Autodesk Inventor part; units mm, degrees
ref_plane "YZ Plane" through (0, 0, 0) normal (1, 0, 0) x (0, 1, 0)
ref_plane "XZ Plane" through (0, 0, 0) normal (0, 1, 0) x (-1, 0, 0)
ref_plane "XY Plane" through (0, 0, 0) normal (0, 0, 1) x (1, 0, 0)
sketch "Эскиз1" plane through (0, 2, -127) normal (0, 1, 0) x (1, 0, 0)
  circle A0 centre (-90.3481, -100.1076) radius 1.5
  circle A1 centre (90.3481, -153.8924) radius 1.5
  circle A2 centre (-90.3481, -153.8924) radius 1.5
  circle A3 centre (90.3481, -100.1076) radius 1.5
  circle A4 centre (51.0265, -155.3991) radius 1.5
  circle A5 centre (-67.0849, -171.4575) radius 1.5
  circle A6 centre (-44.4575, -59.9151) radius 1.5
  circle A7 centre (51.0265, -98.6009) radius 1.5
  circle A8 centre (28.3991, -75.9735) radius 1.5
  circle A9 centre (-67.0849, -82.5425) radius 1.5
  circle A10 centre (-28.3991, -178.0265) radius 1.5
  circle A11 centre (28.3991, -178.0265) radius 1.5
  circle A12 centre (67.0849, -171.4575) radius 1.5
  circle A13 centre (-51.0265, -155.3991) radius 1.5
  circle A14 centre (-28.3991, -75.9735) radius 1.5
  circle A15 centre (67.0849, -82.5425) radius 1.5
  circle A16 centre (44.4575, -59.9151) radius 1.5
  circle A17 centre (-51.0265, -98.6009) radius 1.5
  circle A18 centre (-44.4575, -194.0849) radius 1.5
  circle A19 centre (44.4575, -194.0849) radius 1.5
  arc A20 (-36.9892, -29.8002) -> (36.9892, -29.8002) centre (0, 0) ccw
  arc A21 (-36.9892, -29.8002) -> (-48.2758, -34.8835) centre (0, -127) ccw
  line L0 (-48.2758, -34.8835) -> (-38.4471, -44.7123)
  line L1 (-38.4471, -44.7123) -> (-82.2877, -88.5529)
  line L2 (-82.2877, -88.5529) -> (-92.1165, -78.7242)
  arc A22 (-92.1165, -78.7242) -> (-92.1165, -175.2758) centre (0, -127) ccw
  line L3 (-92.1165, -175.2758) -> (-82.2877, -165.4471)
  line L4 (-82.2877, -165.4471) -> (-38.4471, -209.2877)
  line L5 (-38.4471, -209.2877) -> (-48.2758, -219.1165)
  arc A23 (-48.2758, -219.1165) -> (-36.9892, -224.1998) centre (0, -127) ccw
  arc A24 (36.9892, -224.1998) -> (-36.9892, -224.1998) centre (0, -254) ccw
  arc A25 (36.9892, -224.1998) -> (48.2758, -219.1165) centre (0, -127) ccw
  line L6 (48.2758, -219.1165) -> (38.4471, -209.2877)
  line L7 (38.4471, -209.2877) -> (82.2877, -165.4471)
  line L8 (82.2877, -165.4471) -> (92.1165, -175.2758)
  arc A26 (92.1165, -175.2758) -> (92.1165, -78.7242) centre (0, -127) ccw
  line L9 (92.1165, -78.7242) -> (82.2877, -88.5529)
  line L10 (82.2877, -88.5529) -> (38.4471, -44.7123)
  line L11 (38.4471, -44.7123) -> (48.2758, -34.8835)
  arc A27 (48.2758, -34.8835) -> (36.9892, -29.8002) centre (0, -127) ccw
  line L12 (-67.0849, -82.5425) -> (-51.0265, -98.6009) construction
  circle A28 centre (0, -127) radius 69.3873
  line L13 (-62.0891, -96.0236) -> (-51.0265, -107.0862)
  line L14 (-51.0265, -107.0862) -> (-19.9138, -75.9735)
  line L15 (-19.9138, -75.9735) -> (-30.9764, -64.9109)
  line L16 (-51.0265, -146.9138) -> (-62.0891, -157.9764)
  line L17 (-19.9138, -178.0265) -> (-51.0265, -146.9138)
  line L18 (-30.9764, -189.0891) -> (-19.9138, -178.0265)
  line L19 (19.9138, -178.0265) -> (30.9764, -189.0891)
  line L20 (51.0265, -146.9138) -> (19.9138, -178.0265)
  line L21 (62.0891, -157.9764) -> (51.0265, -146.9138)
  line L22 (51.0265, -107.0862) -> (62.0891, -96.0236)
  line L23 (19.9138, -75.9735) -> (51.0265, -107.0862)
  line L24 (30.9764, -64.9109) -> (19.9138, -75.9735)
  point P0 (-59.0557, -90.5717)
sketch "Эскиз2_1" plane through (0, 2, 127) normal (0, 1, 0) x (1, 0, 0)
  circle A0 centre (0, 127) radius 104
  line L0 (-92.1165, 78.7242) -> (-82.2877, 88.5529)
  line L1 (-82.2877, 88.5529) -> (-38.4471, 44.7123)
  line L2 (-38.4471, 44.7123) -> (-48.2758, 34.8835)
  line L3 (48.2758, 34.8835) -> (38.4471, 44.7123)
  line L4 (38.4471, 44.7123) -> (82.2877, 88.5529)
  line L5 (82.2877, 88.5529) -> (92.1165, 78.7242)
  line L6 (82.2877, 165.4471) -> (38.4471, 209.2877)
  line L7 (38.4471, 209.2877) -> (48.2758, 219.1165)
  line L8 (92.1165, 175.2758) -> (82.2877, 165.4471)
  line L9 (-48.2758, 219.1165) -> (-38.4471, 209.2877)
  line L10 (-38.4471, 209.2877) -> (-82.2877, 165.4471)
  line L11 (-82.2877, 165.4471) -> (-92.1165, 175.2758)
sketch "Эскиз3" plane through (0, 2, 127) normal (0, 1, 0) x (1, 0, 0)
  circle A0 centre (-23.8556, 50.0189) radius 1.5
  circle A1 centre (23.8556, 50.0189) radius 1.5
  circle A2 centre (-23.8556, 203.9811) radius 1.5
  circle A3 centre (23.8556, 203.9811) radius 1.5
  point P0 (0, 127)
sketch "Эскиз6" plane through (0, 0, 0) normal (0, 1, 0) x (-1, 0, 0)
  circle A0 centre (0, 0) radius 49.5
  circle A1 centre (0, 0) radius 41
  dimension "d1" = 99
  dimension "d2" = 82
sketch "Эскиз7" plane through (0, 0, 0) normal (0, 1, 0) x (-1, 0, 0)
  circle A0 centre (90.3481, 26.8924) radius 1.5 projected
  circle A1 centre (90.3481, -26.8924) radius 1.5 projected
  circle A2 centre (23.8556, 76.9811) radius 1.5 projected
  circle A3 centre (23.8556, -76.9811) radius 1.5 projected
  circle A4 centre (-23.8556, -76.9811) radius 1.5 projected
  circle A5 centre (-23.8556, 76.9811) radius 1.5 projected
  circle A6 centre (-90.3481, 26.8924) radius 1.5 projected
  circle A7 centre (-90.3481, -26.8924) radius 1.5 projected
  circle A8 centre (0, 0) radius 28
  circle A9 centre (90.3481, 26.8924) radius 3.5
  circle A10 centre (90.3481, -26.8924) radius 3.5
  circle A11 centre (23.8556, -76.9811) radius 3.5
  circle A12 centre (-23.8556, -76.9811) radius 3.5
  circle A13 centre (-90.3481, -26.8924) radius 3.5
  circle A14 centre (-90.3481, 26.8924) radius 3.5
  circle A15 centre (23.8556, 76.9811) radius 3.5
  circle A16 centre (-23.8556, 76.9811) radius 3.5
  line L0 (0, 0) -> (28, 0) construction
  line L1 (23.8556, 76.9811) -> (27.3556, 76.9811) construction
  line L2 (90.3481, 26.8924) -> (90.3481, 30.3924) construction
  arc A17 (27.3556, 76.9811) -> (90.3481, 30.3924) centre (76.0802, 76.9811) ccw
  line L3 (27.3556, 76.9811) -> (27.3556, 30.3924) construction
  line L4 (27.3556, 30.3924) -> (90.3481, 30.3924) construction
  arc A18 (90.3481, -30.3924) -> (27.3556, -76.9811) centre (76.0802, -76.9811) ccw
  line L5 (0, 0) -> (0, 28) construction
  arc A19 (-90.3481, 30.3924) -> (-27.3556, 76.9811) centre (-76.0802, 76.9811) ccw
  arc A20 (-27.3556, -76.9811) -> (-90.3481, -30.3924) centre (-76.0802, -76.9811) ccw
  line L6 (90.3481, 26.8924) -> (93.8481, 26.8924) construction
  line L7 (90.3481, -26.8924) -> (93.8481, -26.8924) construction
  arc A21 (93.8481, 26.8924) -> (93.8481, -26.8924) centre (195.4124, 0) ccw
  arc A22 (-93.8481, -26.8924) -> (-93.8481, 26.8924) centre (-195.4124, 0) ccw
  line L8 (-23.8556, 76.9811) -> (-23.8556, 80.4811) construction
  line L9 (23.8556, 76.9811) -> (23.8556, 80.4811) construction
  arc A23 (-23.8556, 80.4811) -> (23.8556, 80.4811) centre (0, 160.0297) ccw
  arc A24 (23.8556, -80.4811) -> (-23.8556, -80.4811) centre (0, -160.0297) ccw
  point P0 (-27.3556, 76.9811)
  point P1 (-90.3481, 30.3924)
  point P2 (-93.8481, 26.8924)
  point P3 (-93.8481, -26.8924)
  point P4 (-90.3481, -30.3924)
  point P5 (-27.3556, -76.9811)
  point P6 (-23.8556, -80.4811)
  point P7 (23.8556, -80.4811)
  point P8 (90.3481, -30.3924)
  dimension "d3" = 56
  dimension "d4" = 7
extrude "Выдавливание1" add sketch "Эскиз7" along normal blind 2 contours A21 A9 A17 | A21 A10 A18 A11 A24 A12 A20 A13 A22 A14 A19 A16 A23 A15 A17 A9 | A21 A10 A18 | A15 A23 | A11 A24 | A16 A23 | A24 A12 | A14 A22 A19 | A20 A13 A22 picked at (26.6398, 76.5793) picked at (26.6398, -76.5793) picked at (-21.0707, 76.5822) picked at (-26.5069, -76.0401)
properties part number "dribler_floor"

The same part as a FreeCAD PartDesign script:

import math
import FreeCAD as App
import Part
import Sketcher

doc = App.newDocument("Part")
params = doc.addObject("Spreadsheet::Sheet", "Params")
for row, (alias, value) in enumerate([
    ("sketch1_diameter", "56 mm"),
    ("sketch1_radius", "3.5 mm"),
    ("sketch1_diameter2", "3 mm"),
    ("pad1_length", "2 mm"),
], start=1):
    params.set(f"A{row}", alias)
    params.set(f"B{row}", "=" + value)
    params.setAlias(f"B{row}", alias)

body = doc.addObject("PartDesign::Body", "Body")

# Sketch on XZ plane
sketch1 = body.newObject("Sketcher::SketchObject", "Sketch")
sketch1.AttachmentSupport = (doc.getObject("XZ_Plane"), [""])
sketch1.MapMode = "FlatFace"
sketch1.addGeometry([
    Part.ArcOfCircle(Part.Circle(App.Vector(-90.3, 26.9, 0), App.Vector(0, 0, 1), 3.5), math.radians(90), math.radians(180)),  # 0
    Part.ArcOfCircle(Part.Circle(App.Vector(-76.1, 77, 0), App.Vector(0, 0, 1), 48.7), math.radians(-107), math.radians(0)),  # 1
    Part.ArcOfCircle(Part.Circle(App.Vector(-23.9, 77, 0), App.Vector(0, 0, 1), 3.5), math.radians(90), math.radians(180)),  # 2
    Part.ArcOfCircle(Part.Circle(App.Vector(0, 160, 0), App.Vector(0, 0, 1), 83), math.radians(-107), math.radians(-73)),  # 3
    Part.ArcOfCircle(Part.Circle(App.Vector(23.9, 77, 0), App.Vector(0, 0, 1), 3.5), math.radians(0), math.radians(90)),  # 4
    Part.ArcOfCircle(Part.Circle(App.Vector(76.1, 77, 0), App.Vector(0, 0, 1), 48.7), math.radians(180), math.radians(287)),  # 5
    Part.ArcOfCircle(Part.Circle(App.Vector(90.3, 26.9, 0), App.Vector(0, 0, 1), 3.5), math.radians(0), math.radians(90)),  # 6
    Part.ArcOfCircle(Part.Circle(App.Vector(195.4, 0, 0), App.Vector(0, 0, 1), 105.1), math.radians(165), math.radians(195)),  # 7
    Part.ArcOfCircle(Part.Circle(App.Vector(90.3, -26.9, 0), App.Vector(0, 0, 1), 3.5), math.radians(-90), math.radians(0)),  # 8
    Part.ArcOfCircle(Part.Circle(App.Vector(76.1, -77, 0), App.Vector(0, 0, 1), 48.7), math.radians(73), math.radians(180)),  # 9
    Part.ArcOfCircle(Part.Circle(App.Vector(23.9, -77, 0), App.Vector(0, 0, 1), 3.5), math.radians(-90), math.radians(0)),  # 10
    Part.ArcOfCircle(Part.Circle(App.Vector(0, -160, 0), App.Vector(0, 0, 1), 83), math.radians(73), math.radians(107)),  # 11
    Part.ArcOfCircle(Part.Circle(App.Vector(-23.9, -77, 0), App.Vector(0, 0, 1), 3.5), math.radians(180), math.radians(270)),  # 12
    Part.ArcOfCircle(Part.Circle(App.Vector(-76.1, -77, 0), App.Vector(0, 0, 1), 48.7), math.radians(0), math.radians(107)),  # 13
    Part.ArcOfCircle(Part.Circle(App.Vector(-90.3, -26.9, 0), App.Vector(0, 0, 1), 3.5), math.radians(180), math.radians(270)),  # 14
    Part.ArcOfCircle(Part.Circle(App.Vector(-195.4, 0, 0), App.Vector(0, 0, 1), 105.1), math.radians(-15), math.radians(15)),  # 15
    Part.Circle(App.Vector(-90.3, 26.9, 0), App.Vector(0, 0, 1), 1.5),  # 16
    Part.Circle(App.Vector(0, 0, 0), App.Vector(0, 0, 1), 28),  # 17
    Part.Circle(App.Vector(-90.3, -26.9, 0), App.Vector(0, 0, 1), 1.5),  # 18
    Part.Circle(App.Vector(-23.9, -77, 0), App.Vector(0, 0, 1), 1.5),  # 19
    Part.Circle(App.Vector(23.9, -77, 0), App.Vector(0, 0, 1), 1.5),  # 20
    Part.Circle(App.Vector(90.3, -26.9, 0), App.Vector(0, 0, 1), 1.5),  # 21
    Part.Circle(App.Vector(90.3, 26.9, 0), App.Vector(0, 0, 1), 1.5),  # 22
    Part.Circle(App.Vector(23.9, 77, 0), App.Vector(0, 0, 1), 1.5),  # 23
    Part.Circle(App.Vector(-23.9, 77, 0), App.Vector(0, 0, 1), 1.5),  # 24
], False)
sketch1.addConstraint([
    Sketcher.Constraint("Coincident", 0, 1, 1, 1),
    Sketcher.Constraint("Tangent", 1, 2, 2, 2),
    Sketcher.Constraint("Coincident", 2, 1, 3, 1),
    Sketcher.Constraint("Coincident", 3, 2, 4, 2),
    Sketcher.Constraint("Tangent", 4, 1, 5, 1),
    Sketcher.Constraint("Coincident", 5, 2, 6, 2),
    Sketcher.Constraint("Coincident", 6, 1, 7, 1),
    Sketcher.Constraint("Coincident", 7, 2, 8, 2),
    Sketcher.Constraint("Coincident", 8, 1, 9, 1),
    Sketcher.Constraint("Tangent", 9, 2, 10, 2),
    Sketcher.Constraint("Coincident", 10, 1, 11, 1),
    Sketcher.Constraint("Coincident", 11, 2, 12, 2),
    Sketcher.Constraint("Tangent", 12, 1, 13, 1),
    Sketcher.Constraint("Coincident", 13, 2, 14, 2),
    Sketcher.Constraint("Coincident", 14, 1, 15, 1),
    Sketcher.Constraint("Coincident", 15, 2, 0, 2),
    Sketcher.Constraint("Coincident", 17, 3, -1, 1),
    Sketcher.Constraint("Coincident", 16, 3, 0, 3),
    Sketcher.Constraint("Coincident", 18, 3, 14, 3),
    Sketcher.Constraint("Coincident", 19, 3, 12, 3),
    Sketcher.Constraint("Coincident", 20, 3, 10, 3),
    Sketcher.Constraint("Coincident", 21, 3, 8, 3),
    Sketcher.Constraint("Coincident", 22, 3, 6, 3),
    Sketcher.Constraint("Coincident", 23, 3, 4, 3),
    Sketcher.Constraint("Coincident", 24, 3, 2, 3),
    Sketcher.Constraint("Equal", 0, 2),
    Sketcher.Constraint("Equal", 2, 4),
    Sketcher.Constraint("Equal", 1, 5),
    Sketcher.Constraint("Equal", 4, 6),
    Sketcher.Constraint("Equal", 6, 8),
    Sketcher.Constraint("Equal", 5, 9),
    Sketcher.Constraint("Equal", 8, 10),
    Sketcher.Constraint("Equal", 3, 11),
    Sketcher.Constraint("Equal", 10, 12),
    Sketcher.Constraint("Equal", 9, 13),
    Sketcher.Constraint("Equal", 12, 14),
    Sketcher.Constraint("Equal", 7, 15),
    Sketcher.Constraint("Equal", 16, 18),
    Sketcher.Constraint("Equal", 18, 19),
    Sketcher.Constraint("Equal", 19, 20),
    Sketcher.Constraint("Equal", 20, 21),
    Sketcher.Constraint("Equal", 21, 22),
    Sketcher.Constraint("Equal", 22, 23),
    Sketcher.Constraint("Equal", 23, 24),
    Sketcher.Constraint("Symmetric", 0, 3, 8, 3, -1, 1),
    Sketcher.Constraint("Symmetric", 1, 3, 9, 3, -1, 1),
    Sketcher.Constraint("Symmetric", 3, 3, 11, 3, -1, 1),
    Sketcher.Constraint("Symmetric", 4, 3, 12, 3, -1, 1),
    Sketcher.Constraint("Symmetric", 6, 3, 14, 3, -1, 1),
    Sketcher.Constraint("Symmetric", 7, 3, 15, 3, -1, 1),
    Sketcher.Constraint("Symmetric", 2, 3, 4, 3, -2),
    Sketcher.Constraint("Symmetric", 0, 3, 6, 3, -2),
    Sketcher.Constraint("Symmetric", 10, 1, 11, 2, -2),
    Sketcher.Constraint("PointOnObject", 7, 3, -1),
    Sketcher.Constraint("Horizontal", 1, 3, 2, 3),
    Sketcher.Constraint("Horizontal", 4, 3, 5, 3),
    Sketcher.Constraint("Horizontal", 12, 3, 13, 3),
    Sketcher.Constraint("Horizontal", 22, 3, 6, 1),
    Sketcher.Constraint("Vertical", 18, 3, 0, 1),
    Sketcher.Constraint("Vertical", 24, 3, 2, 1),
    Sketcher.Constraint("Diameter", 17, 56.0),
    Sketcher.Constraint("Radius", 0, 3.5),
    Sketcher.Constraint("Diameter", 16, 3.0),
    Sketcher.Constraint("Radius", 1, 48.7246),
    Sketcher.Constraint("Radius", 3, 83.0486),
    Sketcher.Constraint("Radius", 7, 105.0643),
    Sketcher.Constraint("DistanceX", 0, 3, -1, 1, 90.348),
    Sketcher.Constraint("DistanceY", -1, 1, 1, 3, 76.981),
    Sketcher.Constraint("DistanceX", 0, 3, 1, 3, 14.268),
])
sketch1.setExpression("Constraints[60]", "Params.sketch1_diameter")
sketch1.setExpression("Constraints[61]", "Params.sketch1_radius")
sketch1.setExpression("Constraints[62]", "Params.sketch1_diameter2")
pad1 = body.newObject("PartDesign::Pad", "Pad")
pad1.Profile = sketch1
pad1.setExpression("Length", "Params.pad1_length")
pad1.Reversed = True

doc.recompute()
